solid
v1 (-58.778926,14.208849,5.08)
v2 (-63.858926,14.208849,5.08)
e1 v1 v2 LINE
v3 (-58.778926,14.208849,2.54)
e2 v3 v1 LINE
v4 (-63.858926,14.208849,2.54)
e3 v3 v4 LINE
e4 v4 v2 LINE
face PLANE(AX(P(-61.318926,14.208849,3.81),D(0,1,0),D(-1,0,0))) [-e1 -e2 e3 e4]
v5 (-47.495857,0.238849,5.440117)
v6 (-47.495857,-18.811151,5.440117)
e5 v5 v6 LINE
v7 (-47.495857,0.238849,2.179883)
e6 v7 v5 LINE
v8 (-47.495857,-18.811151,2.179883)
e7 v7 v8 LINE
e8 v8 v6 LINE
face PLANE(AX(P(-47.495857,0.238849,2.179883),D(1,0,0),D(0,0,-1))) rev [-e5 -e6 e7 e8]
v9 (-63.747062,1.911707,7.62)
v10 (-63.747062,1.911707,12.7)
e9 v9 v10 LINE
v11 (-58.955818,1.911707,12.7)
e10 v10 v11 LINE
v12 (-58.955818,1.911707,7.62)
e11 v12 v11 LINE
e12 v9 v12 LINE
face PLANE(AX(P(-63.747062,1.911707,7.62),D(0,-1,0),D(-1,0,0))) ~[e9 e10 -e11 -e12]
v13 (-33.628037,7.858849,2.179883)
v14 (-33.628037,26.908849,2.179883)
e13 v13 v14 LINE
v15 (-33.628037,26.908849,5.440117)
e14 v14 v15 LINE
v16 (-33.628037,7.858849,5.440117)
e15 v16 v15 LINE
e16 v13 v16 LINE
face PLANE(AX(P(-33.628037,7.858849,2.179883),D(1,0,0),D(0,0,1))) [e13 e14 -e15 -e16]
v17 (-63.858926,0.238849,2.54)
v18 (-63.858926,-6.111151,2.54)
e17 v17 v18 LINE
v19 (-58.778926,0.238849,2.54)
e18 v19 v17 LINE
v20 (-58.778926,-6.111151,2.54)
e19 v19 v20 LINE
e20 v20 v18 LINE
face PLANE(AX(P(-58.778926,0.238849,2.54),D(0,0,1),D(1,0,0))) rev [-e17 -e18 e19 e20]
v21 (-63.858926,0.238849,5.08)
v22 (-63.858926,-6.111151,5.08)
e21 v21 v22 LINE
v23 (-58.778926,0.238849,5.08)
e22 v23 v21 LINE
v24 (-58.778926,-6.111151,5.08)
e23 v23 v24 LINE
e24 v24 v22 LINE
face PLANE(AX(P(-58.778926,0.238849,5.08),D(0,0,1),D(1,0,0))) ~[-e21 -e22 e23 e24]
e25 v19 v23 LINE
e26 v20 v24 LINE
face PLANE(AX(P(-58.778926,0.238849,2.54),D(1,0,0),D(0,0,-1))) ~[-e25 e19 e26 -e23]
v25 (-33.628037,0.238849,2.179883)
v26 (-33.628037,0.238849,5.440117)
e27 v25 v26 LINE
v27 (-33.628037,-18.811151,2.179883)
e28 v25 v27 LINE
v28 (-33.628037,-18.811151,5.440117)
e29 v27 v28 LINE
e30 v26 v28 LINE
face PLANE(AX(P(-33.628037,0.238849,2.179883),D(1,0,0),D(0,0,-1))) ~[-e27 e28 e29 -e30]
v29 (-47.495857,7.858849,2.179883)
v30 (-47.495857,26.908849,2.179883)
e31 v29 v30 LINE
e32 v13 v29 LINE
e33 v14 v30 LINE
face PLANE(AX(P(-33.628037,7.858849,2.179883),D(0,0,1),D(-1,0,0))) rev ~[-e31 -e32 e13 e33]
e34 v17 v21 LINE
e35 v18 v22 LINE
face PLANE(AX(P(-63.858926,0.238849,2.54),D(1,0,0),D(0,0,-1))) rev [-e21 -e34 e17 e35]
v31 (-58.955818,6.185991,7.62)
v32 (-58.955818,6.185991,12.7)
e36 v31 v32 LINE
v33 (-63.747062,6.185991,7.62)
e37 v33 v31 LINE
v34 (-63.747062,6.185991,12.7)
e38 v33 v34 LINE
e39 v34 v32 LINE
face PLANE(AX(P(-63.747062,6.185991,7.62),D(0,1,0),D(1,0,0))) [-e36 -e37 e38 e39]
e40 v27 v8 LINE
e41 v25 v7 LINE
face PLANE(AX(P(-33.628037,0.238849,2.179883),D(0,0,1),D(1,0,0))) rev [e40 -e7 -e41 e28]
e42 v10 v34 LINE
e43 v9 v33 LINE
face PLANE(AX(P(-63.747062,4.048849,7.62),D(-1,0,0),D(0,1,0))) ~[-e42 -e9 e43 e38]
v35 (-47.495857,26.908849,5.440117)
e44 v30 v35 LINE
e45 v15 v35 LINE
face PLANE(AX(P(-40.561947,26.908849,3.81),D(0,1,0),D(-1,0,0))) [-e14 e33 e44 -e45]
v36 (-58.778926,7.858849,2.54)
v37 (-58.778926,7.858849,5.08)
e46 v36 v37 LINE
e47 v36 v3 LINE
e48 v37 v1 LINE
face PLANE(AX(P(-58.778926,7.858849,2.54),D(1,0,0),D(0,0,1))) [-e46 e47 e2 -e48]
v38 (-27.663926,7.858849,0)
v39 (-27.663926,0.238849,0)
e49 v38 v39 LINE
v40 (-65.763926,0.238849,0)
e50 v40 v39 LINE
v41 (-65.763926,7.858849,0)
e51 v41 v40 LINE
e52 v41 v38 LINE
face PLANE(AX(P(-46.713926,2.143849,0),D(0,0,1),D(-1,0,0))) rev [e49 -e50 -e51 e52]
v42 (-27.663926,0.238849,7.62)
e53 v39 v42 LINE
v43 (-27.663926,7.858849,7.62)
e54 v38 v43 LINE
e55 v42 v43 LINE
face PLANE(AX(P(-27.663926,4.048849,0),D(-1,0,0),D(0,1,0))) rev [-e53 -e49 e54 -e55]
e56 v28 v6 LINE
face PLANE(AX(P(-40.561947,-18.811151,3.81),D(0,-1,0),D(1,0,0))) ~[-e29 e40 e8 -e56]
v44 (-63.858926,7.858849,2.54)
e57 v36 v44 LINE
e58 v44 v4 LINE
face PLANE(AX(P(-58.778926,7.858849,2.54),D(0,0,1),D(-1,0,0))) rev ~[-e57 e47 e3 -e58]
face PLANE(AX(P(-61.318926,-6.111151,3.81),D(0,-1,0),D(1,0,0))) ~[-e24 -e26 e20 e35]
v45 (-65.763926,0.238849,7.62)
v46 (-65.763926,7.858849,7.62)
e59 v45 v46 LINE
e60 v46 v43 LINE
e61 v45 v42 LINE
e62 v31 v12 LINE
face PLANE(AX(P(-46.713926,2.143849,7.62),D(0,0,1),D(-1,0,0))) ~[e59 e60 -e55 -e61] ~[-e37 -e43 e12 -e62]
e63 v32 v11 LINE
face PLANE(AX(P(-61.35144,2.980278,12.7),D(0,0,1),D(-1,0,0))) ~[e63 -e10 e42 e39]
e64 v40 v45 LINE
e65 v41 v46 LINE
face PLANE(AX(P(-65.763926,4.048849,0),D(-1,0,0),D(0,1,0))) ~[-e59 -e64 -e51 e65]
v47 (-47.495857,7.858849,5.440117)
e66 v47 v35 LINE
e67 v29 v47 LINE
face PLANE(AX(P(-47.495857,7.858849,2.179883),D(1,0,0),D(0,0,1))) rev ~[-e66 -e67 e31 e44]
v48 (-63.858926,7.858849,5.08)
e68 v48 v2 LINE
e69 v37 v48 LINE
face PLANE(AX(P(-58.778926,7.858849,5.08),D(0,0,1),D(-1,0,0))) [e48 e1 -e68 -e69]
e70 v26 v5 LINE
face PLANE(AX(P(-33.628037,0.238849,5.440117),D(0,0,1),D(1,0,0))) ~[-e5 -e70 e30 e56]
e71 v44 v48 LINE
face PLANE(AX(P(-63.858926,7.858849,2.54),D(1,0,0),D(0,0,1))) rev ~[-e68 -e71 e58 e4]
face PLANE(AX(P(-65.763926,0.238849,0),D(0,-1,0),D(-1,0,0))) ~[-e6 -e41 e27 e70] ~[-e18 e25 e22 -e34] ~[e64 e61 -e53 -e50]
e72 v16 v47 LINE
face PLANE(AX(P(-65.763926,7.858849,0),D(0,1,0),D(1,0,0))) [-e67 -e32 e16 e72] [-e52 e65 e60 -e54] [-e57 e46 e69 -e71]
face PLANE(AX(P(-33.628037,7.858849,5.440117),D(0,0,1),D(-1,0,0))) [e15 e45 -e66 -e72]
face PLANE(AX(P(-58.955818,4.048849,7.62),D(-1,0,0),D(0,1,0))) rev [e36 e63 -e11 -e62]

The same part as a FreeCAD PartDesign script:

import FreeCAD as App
import Part
import Sketcher

V = App.Vector
Q = App.Units.Quantity

doc = App.newDocument("Part")
body = doc.addObject("PartDesign::Body", "Body")

sketch1 = body.newObject("Sketcher::SketchObject", "Sketch")
sketch1.AttachmentSupport = (doc.getObject("XY_Plane"), [""])
sketch1.MapMode = "FlatFace"
sketch1.addGeometry(Part.LineSegment(V(-65.763926, 7.858849, 0), V(-65.763926, 4.048849, 0)), False)
sketch1.addGeometry(Part.LineSegment(V(-65.763926, 4.048849, 0), V(-27.663926, 4.048849, 0)), False)
sketch1.addGeometry(Part.LineSegment(V(-27.663926, 4.048849, 0), V(-27.663926, 7.858849, 0)), False)
sketch1.addGeometry(Part.LineSegment(V(-27.663926, 7.858849, 0), V(-65.763926, 7.858849, 0)), False)
sketch1.addConstraint(Sketcher.Constraint("Coincident", 0, 2, 1, 1))
sketch1.addConstraint(Sketcher.Constraint("Coincident", 1, 2, 2, 1))
sketch1.addConstraint(Sketcher.Constraint("Coincident", 2, 2, 3, 1))
sketch1.addConstraint(Sketcher.Constraint("Coincident", 3, 2, 0, 1))
sketch1.addConstraint(Sketcher.Constraint("Vertical", 0))
sketch1.addConstraint(Sketcher.Constraint("Horizontal", 1))
sketch1.addConstraint(Sketcher.Constraint("Vertical", 2))
sketch1.addConstraint(Sketcher.Constraint("Horizontal", 3))
sketch1.addConstraint(Sketcher.Constraint("DistanceX", 1, 1, 1, 2, Q("1.5 in")))
sketch1.addConstraint(Sketcher.Constraint("DistanceY", 0, 2, 0, 1, Q("0.15 in")))
sketch1.addConstraint(Sketcher.Constraint("DistanceY", -1, 1, 0, 2, Q("4.048849 mm")))
sketch1.addConstraint(Sketcher.Constraint("DistanceX", 0, 2, -1, 1, Q("65.763926 mm")))
pad1 = body.newObject("PartDesign::Pad", "Pad")
pad1.Profile = sketch1
pad1.Length = Q("0.3 in")

sketch2 = body.newObject("Sketcher::SketchObject", "Sketch001")
sketch2.AttachmentSupport = (doc.getObject("XZ_Plane"), [""])
sketch2.MapMode = "FlatFace"
sketch2.AttachmentOffset = App.Placement(V(0, 0, -7.858849), App.Rotation())
sketch2.addGeometry(Part.LineSegment(V(-33.628037, 5.440117, 0), V(-33.628037, 2.179883, 0)), False)
sketch2.addGeometry(Part.LineSegment(V(-33.628037, 2.179883, 0), V(-47.495857, 2.179883, 0)), False)
sketch2.addGeometry(Part.LineSegment(V(-47.495857, 2.179883, 0), V(-47.495857, 5.440117, 0)), False)
sketch2.addGeometry(Part.LineSegment(V(-47.495857, 5.440117, 0), V(-33.628037, 5.440117, 0)), False)
sketch2.addConstraint(Sketcher.Constraint("Coincident", 0, 2, 1, 1))
sketch2.addConstraint(Sketcher.Constraint("Coincident", 1, 2, 2, 1))
sketch2.addConstraint(Sketcher.Constraint("Coincident", 2, 2, 3, 1))
sketch2.addConstraint(Sketcher.Constraint("Coincident", 3, 2, 0, 1))
sketch2.addConstraint(Sketcher.Constraint("Vertical", 0))
sketch2.addConstraint(Sketcher.Constraint("Horizontal", 1))
sketch2.addConstraint(Sketcher.Constraint("Vertical", 2))
sketch2.addConstraint(Sketcher.Constraint("Horizontal", 3))
sketch2.addConstraint(Sketcher.Constraint("DistanceX", 1, 2, 1, 1, Q("13.867821 mm")))
sketch2.addConstraint(Sketcher.Constraint("DistanceY", 0, 2, 0, 1, Q("3.260234 mm")))
sketch2.addConstraint(Sketcher.Constraint("DistanceX", 0, 2, -1, 1, Q("33.628037 mm")))
sketch2.addConstraint(Sketcher.Constraint("DistanceY", -1, 1, 0, 2, Q("2.179883 mm")))
pad2 = body.newObject("PartDesign::Pad", "Pad001")
pad2.Profile = sketch2
pad2.Length = Q("0.75 in")
pad2.Reversed = True

sketch3 = body.newObject("Sketcher::SketchObject", "Sketch002")
sketch3.AttachmentSupport = (doc.getObject("XZ_Plane"), [""])
sketch3.MapMode = "FlatFace"
sketch3.AttachmentOffset = App.Placement(V(0, 0, -7.858849), App.Rotation())
sketch3.addGeometry(Part.LineSegment(V(-58.778926, 5.08, 0), V(-58.778926, 2.54, 0)), False)
sketch3.addGeometry(Part.LineSegment(V(-58.778926, 2.54, 0), V(-63.858926, 2.54, 0)), False)
sketch3.addGeometry(Part.LineSegment(V(-63.858926, 2.54, 0), V(-63.858926, 5.08, 0)), False)
sketch3.addGeometry(Part.LineSegment(V(-63.858926, 5.08, 0), V(-58.778926, 5.08, 0)), False)
sketch3.addConstraint(Sketcher.Constraint("Coincident", 0, 2, 1, 1))
sketch3.addConstraint(Sketcher.Constraint("Coincident", 1, 2, 2, 1))
sketch3.addConstraint(Sketcher.Constraint("Coincident", 2, 2, 3, 1))
sketch3.addConstraint(Sketcher.Constraint("Coincident", 3, 2, 0, 1))
sketch3.addConstraint(Sketcher.Constraint("Vertical", 0))
sketch3.addConstraint(Sketcher.Constraint("Horizontal", 1))
sketch3.addConstraint(Sketcher.Constraint("Vertical", 2))
sketch3.addConstraint(Sketcher.Constraint("Horizontal", 3))
sketch3.addConstraint(Sketcher.Constraint("DistanceX", 1, 2, 1, 1, Q("0.2 in")))
sketch3.addConstraint(Sketcher.Constraint("DistanceY", 0, 2, 0, 1, Q("0.1 in")))
sketch3.addConstraint(Sketcher.Constraint("DistanceY", -1, 1, 0, 2, Q("0.1 in")))
sketch3.addConstraint(Sketcher.Constraint("DistanceX", 0, 2, -1, 1, Q("58.778926 mm")))
pad3 = body.newObject("PartDesign::Pad", "Pad002")
pad3.Profile = sketch3
pad3.Length = Q("0.25 in")
pad3.Reversed = True

sketch4 = body.newObject("Sketcher::SketchObject", "Sketch003")
sketch4.AttachmentSupport = (doc.getObject("XY_Plane"), [""])
sketch4.MapMode = "FlatFace"
sketch4.AttachmentOffset = App.Placement(V(0, 0, 0.3 * 25.4), App.Rotation())
sketch4.addGeometry(Part.LineSegment(V(-63.747062, 6.185991, 0), V(-63.747062, 4.048849, 0)), False)
sketch4.addGeometry(Part.LineSegment(V(-63.747062, 4.048849, 0), V(-58.955818, 4.048849, 0)), False)
sketch4.addGeometry(Part.LineSegment(V(-58.955818, 4.048849, 0), V(-58.955818, 6.185991, 0)), False)
sketch4.addGeometry(Part.LineSegment(V(-58.955818, 6.185991, 0), V(-63.747062, 6.185991, 0)), False)
sketch4.addConstraint(Sketcher.Constraint("Coincident", 0, 2, 1, 1))
sketch4.addConstraint(Sketcher.Constraint("Coincident", 1, 2, 2, 1))
sketch4.addConstraint(Sketcher.Constraint("Coincident", 2, 2, 3, 1))
sketch4.addConstraint(Sketcher.Constraint("Coincident", 3, 2, 0, 1))
sketch4.addConstraint(Sketcher.Constraint("Vertical", 0))
sketch4.addConstraint(Sketcher.Constraint("Horizontal", 1))
sketch4.addConstraint(Sketcher.Constraint("Vertical", 2))
sketch4.addConstraint(Sketcher.Constraint("Horizontal", 3))
sketch4.addConstraint(Sketcher.Constraint("DistanceY", 0, 2, 0, 1, Q("2.137142 mm")))
sketch4.addConstraint(Sketcher.Constraint("DistanceX", 1, 1, 1, 2, Q("4.791245 mm")))
sketch4.addConstraint(Sketcher.Constraint("DistanceY", -1, 1, 0, 2, Q("4.048849 mm")))
sketch4.addConstraint(Sketcher.Constraint("DistanceX", 0, 2, -1, 1, Q("63.747062 mm")))
pad4 = body.newObject("PartDesign::Pad", "Pad003")
pad4.Profile = sketch4
pad4.Length = Q("0.2 in")
body2 = doc.addObject("PartDesign::Body", "Body001")
doc.recompute()

body2.BaseFeature = body
doc.recompute()

mirroring = doc.addObject("Part::Mirroring", "Mirroring")
mirroring.Source = body
mirroring.Base = V(-47.846159, 4.048849, 4.301182)
mirroring.Normal = V(0, -1, 0)
body3 = doc.addObject("PartDesign::Body", "Body002")
body3.BaseFeature = mirroring
boolean = body2.newObject("PartDesign::Boolean", "Boolean")
boolean.Type = "Fuse"
boolean.addObjects([body3])
doc.recompute()
mirroring.Visibility = False

doc.recompute()
